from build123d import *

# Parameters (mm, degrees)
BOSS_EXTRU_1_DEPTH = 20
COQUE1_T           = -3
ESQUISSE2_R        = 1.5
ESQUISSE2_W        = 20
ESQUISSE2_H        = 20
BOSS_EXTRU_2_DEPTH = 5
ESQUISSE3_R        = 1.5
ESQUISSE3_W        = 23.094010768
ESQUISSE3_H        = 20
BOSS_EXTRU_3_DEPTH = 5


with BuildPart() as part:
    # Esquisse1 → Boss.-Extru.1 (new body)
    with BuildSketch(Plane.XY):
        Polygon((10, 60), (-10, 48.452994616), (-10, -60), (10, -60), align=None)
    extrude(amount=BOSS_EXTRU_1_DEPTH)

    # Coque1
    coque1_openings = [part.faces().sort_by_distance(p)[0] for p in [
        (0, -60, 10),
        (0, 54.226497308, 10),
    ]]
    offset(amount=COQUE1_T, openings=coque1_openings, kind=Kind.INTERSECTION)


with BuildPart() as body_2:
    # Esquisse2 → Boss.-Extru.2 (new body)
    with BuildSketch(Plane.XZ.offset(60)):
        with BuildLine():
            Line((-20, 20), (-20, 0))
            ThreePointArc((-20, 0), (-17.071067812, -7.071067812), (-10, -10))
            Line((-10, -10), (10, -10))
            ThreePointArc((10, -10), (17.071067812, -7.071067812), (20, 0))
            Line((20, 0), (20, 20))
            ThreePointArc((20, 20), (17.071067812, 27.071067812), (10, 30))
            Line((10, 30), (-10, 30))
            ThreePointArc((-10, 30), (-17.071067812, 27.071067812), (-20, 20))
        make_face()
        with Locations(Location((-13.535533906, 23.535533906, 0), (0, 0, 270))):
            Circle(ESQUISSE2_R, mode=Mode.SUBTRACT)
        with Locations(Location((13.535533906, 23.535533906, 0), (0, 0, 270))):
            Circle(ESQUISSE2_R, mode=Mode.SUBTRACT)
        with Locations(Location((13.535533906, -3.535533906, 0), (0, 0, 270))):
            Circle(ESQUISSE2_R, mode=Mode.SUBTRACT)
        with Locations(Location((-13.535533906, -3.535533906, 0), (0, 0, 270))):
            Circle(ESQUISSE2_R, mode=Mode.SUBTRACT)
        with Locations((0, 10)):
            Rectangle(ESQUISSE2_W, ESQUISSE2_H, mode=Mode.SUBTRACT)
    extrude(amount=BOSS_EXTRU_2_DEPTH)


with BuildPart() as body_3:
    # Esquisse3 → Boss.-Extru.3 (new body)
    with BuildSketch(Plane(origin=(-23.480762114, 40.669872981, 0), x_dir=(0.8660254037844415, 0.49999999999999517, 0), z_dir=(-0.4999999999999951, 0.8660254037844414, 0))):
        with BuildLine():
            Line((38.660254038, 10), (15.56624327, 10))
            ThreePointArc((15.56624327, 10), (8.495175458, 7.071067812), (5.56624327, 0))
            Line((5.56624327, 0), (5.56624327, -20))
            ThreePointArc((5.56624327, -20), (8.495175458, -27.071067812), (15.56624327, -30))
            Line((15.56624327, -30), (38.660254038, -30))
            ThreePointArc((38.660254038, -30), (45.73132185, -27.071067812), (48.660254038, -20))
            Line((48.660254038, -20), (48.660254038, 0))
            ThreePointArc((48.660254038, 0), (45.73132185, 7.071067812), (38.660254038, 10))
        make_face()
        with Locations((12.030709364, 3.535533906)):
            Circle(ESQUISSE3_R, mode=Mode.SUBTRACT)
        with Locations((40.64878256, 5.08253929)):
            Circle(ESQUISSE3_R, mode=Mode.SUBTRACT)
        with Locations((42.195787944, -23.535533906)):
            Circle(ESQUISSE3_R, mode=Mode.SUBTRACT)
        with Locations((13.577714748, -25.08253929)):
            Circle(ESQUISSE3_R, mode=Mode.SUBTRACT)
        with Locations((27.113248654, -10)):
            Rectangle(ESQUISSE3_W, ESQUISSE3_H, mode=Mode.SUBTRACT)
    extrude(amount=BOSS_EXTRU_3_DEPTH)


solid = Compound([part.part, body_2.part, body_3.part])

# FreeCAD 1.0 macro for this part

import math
import FreeCAD as App
import Part
import Sketcher
from FreeCAD import Vector
Q = App.Units.Quantity


def faces_at(feature, points):
    """Names of the faces that lie closest to the given points."""
    faces = feature.Shape.Faces
    near = lambda p: min(range(len(faces)), key=lambda i: faces[i].distToShape(Part.Vertex(*p))[0])
    return sorted({f"Face{near(p) + 1}" for p in points})


def add_polygon(sketch, points):
    """Adds a closed chain of lines whose ends are joined by coincident constraints."""
    first, n = sketch.GeometryCount, len(points)
    for a, b in zip(points, points[1:] + points[:1]):
        sketch.addGeometry(Part.LineSegment(App.Vector(*a, 0), App.Vector(*b, 0)), False)
    for i in range(n):
        sketch.addConstraint(Sketcher.Constraint("Coincident", first + i, 2, first + (i + 1) % n, 1))

doc = App.newDocument("Part")
params = doc.addObject("Spreadsheet::Sheet", "Params")
for row, (alias, value) in enumerate([
    ("sketch1_width", "20 mm"),
    ("sketch1_height", "120 mm"),
    ("pad1_length", "20 mm"),
    ("thickness_wall", "3 mm"),
    ("sketch2_diameter", "3 mm"),
    ("sketch2_radius", "10 mm"),
    ("sketch2_width", "20 mm"),
    ("pad2_length", "5 mm"),
    ("sketch3_diameter", "3 mm"),
    ("sketch3_radius", "10 mm"),
    ("sketch3_height", "20 mm"),
    ("pad3_length", "5 mm"),
], start=1):
    params.set(f"A{row}", alias)
    params.set(f"B{row}", "=" + value)
    params.setAlias(f"B{row}", alias)

body = doc.addObject("PartDesign::Body", "Body")

# Sketch on XY plane
sketch1 = body.newObject("Sketcher::SketchObject", "Sketch")
sketch1.AttachmentSupport = (doc.getObject("XY_Plane"), [""])
sketch1.MapMode = "FlatFace"
add_polygon(sketch1, [(10, 60), (-10, 48), (-10, -60), (10, -60)])  # lines 0-3
sketch1.addConstraint([
    Sketcher.Constraint("Vertical", 1),
    Sketcher.Constraint("Horizontal", 2),
    Sketcher.Constraint("Vertical", 3),
    Sketcher.Constraint("Symmetric", 1, 2, 3, 2, -1, 1),
    Sketcher.Constraint("DistanceX", 2, 1, 2, 2, 20.0),
    Sketcher.Constraint("DistanceY", 3, 1, 3, 2, 120.0),
    Sketcher.Constraint("Angle", 0, Q("-150 deg")),
])
sketch1.setExpression("Constraints[8]", "Params.sketch1_width")
sketch1.setExpression("Constraints[9]", "Params.sketch1_height")
pad1 = body.newObject("PartDesign::Pad", "Pad")
pad1.Profile = sketch1
pad1.setExpression("Length", "Params.pad1_length")
doc.recompute()

thickness = body.newObject("PartDesign::Thickness", "Thickness")
thickness.Base = (pad1, faces_at(pad1, [(0, -60, 10), (0, 54.226, 10)]))
thickness.setExpression("Value", "Params.thickness_wall")
thickness.Reversed = True
thickness.Join = "Intersection"
body2 = doc.addObject("PartDesign::Body", "Body001")

# Sketch on XZ plane
sketch2 = body2.newObject("Sketcher::SketchObject", "Sketch001")
sketch2.AttachmentSupport = (doc.getObject("XZ_Plane001"), [""])
sketch2.MapMode = "FlatFace"
sketch2.AttachmentOffset = App.Placement(Vector(0, 0, 60), App.Rotation())
sketch2.addGeometry(Part.LineSegment(Vector(-20, 20, 0), Vector(-20, 0, 0)), False)  # 0
sketch2.addGeometry(Part.ArcOfCircle(Part.Circle(Vector(-10, 0, 0), Vector(0, 0, 1), 10), math.radians(180), math.radians(270)), False)  # 1
sketch2.addGeometry(Part.LineSegment(Vector(-10, -10, 0), Vector(10, -10, 0)), False)  # 2
sketch2.addGeometry(Part.ArcOfCircle(Part.Circle(Vector(10, 0, 0), Vector(0, 0, 1), 10), math.radians(-90), math.radians(0)), False)  # 3
sketch2.addGeometry(Part.LineSegment(Vector(20, 0, 0), Vector(20, 20, 0)), False)  # 4
sketch2.addGeometry(Part.ArcOfCircle(Part.Circle(Vector(10, 20, 0), Vector(0, 0, 1), 10), math.radians(0), math.radians(90)), False)  # 5
sketch2.addGeometry(Part.LineSegment(Vector(10, 30, 0), Vector(-10, 30, 0)), False)  # 6
sketch2.addGeometry(Part.ArcOfCircle(Part.Circle(Vector(-10, 20, 0), Vector(0, 0, 1), 10), math.radians(90), math.radians(180)), False)  # 7
sketch2.addGeometry(Part.Circle(Vector(-13.5, -3.5, 0), Vector(0, 0, 1), 1.5), False)  # 8
sketch2.addGeometry(Part.Circle(Vector(13.5, -3.5, 0), Vector(0, 0, 1), 1.5), False)  # 9
add_polygon(sketch2, [(10, 0), (-10, 0), (-10, 20), (10, 20)])  # lines 10-13
sketch2.addGeometry(Part.Circle(Vector(-13.5, 23.5, 0), Vector(0, 0, 1), 1.5), False)  # 14
sketch2.addGeometry(Part.Circle(Vector(13.5, 23.5, 0), Vector(0, 0, 1), 1.5), False)  # 15
sketch2.addConstraint([
    Sketcher.Constraint("Tangent", 0, 2, 1, 1),
    Sketcher.Constraint("Tangent", 1, 2, 2, 1),
    Sketcher.Constraint("Tangent", 2, 2, 3, 1),
    Sketcher.Constraint("Tangent", 3, 2, 4, 1),
    Sketcher.Constraint("Tangent", 4, 2, 5, 1),
    Sketcher.Constraint("Tangent", 5, 2, 6, 1),
    Sketcher.Constraint("Tangent", 6, 2, 7, 1),
    Sketcher.Constraint("Tangent", 7, 2, 0, 1),
    Sketcher.Constraint("Vertical", 0),
    Sketcher.Constraint("Horizontal", 2),
    Sketcher.Constraint("Vertical", 4),
    Sketcher.Constraint("Horizontal", 6),
    Sketcher.Constraint("Horizontal", 10),
    Sketcher.Constraint("Vertical", 11),
    Sketcher.Constraint("Horizontal", 12),
    Sketcher.Constraint("Vertical", 13),
    Sketcher.Constraint("Coincident", 10, 2, 1, 3),
    Sketcher.Constraint("Coincident", 11, 2, 7, 3),
    Sketcher.Constraint("Coincident", 12, 2, 5, 3),
    Sketcher.Constraint("Equal", 1, 3),
    Sketcher.Constraint("Equal", 8, 9),
    Sketcher.Constraint("Equal", 9, 14),
    Sketcher.Constraint("Equal", 14, 15),
    Sketcher.Constraint("Symmetric", 1, 3, 3, 3, -1, 1),
    Sketcher.Constraint("Symmetric", 8, 3, 9, 3, -2),
    Sketcher.Constraint("Symmetric", 14, 3, 15, 3, -2),
    Sketcher.Constraint("Vertical", 8, 3, 14, 3),
    Sketcher.Constraint("Equal", 12, 0),
    Sketcher.Constraint("Diameter", 8, 3.0),
    Sketcher.Constraint("Radius", 1, 10.0),
    Sketcher.Constraint("DistanceX", 2, 1, 2, 2, 20.0),
    Sketcher.Constraint("DistanceX", 8, 3, -1, 1, 13.535534),
    Sketcher.Constraint("DistanceY", 8, 3, -1, 1, 3.535534),
    Sketcher.Constraint("DistanceY", -1, 1, 14, 3, 23.535534),
])
sketch2.setExpression("Constraints[32]", "Params.sketch2_diameter")
sketch2.setExpression("Constraints[33]", "Params.sketch2_radius")
sketch2.setExpression("Constraints[34]", "Params.sketch2_width")
pad2 = body2.newObject("PartDesign::Pad", "Pad001")
pad2.Profile = sketch2
pad2.setExpression("Length", "Params.pad2_length")
body3 = doc.addObject("PartDesign::Body", "Body002")

# Sketch on an angled plane
sketch3 = body3.newObject("Sketcher::SketchObject", "Sketch002")
sketch3.Placement = App.Placement(Vector(-23.480762, 40.669873, 0), App.Rotation(Vector(0.866025404, 0.5, 0), Vector(0, 0, -1), Vector(-0.5, 0.866025404, 0), "ZXY"))
sketch3.addGeometry(Part.LineSegment(Vector(38.7, 10, 0), Vector(15.6, 10, 0)), False)  # 0
sketch3.addGeometry(Part.ArcOfCircle(Part.Circle(Vector(15.6, 0, 0), Vector(0, 0, 1), 10), math.radians(90), math.radians(180)), False)  # 1
sketch3.addGeometry(Part.LineSegment(Vector(5.6, 0, 0), Vector(5.6, -20, 0)), False)  # 2
sketch3.addGeometry(Part.ArcOfCircle(Part.Circle(Vector(15.6, -20, 0), Vector(0, 0, 1), 10), math.radians(180), math.radians(270)), False)  # 3
sketch3.addGeometry(Part.LineSegment(Vector(15.6, -30, 0), Vector(38.7, -30, 0)), False)  # 4
sketch3.addGeometry(Part.ArcOfCircle(Part.Circle(Vector(38.7, -20, 0), Vector(0, 0, 1), 10), math.radians(-90), math.radians(0)), False)  # 5
sketch3.addGeometry(Part.LineSegment(Vector(48.7, -20, 0), Vector(48.7, 0, 0)), False)  # 6
sketch3.addGeometry(Part.ArcOfCircle(Part.Circle(Vector(38.7, 0, 0), Vector(0, 0, 1), 10), math.radians(0), math.radians(90)), False)  # 7
sketch3.addGeometry(Part.Circle(Vector(13.6, -25.1, 0), Vector(0, 0, 1), 1.5), False)  # 8
sketch3.addGeometry(Part.Circle(Vector(42.2, -23.5, 0), Vector(0, 0, 1), 1.5), False)  # 9
sketch3.addGeometry(Part.Circle(Vector(12, 3.5, 0), Vector(0, 0, 1), 1.5), False)  # 10
add_polygon(sketch3, [(38.7, -20), (15.6, -20), (15.6, 0), (38.7, 0)])  # lines 11-14
sketch3.addGeometry(Part.Circle(Vector(40.6, 5.1, 0), Vector(0, 0, 1), 1.5), False)  # 15
sketch3.addConstraint([
    Sketcher.Constraint("Tangent", 0, 2, 1, 1),
    Sketcher.Constraint("Tangent", 1, 2, 2, 1),
    Sketcher.Constraint("Tangent", 2, 2, 3, 1),
    Sketcher.Constraint("Tangent", 3, 2, 4, 1),
    Sketcher.Constraint("Tangent", 4, 2, 5, 1),
    Sketcher.Constraint("Tangent", 5, 2, 6, 1),
    Sketcher.Constraint("Tangent", 6, 2, 7, 1),
    Sketcher.Constraint("Tangent", 7, 2, 0, 1),
    Sketcher.Constraint("Horizontal", 0),
    Sketcher.Constraint("Vertical", 2),
    Sketcher.Constraint("Horizontal", 4),
    Sketcher.Constraint("Vertical", 6),
    Sketcher.Constraint("Horizontal", 11),
    Sketcher.Constraint("Vertical", 12),
    Sketcher.Constraint("Horizontal", 13),
    Sketcher.Constraint("Vertical", 14),
    Sketcher.Constraint("Coincident", 11, 2, 3, 3),
    Sketcher.Constraint("Coincident", 12, 2, 1, 3),
    Sketcher.Constraint("Coincident", 13, 2, 7, 3),
    Sketcher.Constraint("Equal", 3, 5),
    Sketcher.Constraint("Equal", 8, 9),
    Sketcher.Constraint("Equal", 9, 10),
    Sketcher.Constraint("Equal", 10, 15),
    Sketcher.Constraint("PointOnObject", 1, 3, -1),
    Sketcher.Constraint("Diameter", 8, 3.0),
    Sketcher.Constraint("Radius", 1, 10.0),
    Sketcher.Constraint("DistanceY", 2, 2, 2, 1, 20.0),
    Sketcher.Constraint("DistanceX", 0, 2, 0, 1, 23.094011),
    Sketcher.Constraint("DistanceY", 8, 3, -1, 1, 25.082539),
    Sketcher.Constraint("DistanceX", -1, 1, 10, 3, 12.030709),
    Sketcher.Constraint("DistanceY", -1, 1, 15, 3, 5.082539),
    Sketcher.Constraint("DistanceX", 8, 3, 3, 3, 1.988529),
    Sketcher.Constraint("DistanceX", 7, 3, 15, 3, 1.988529),
    Sketcher.Constraint("DistanceX", -1, 1, 1, 3, 15.566243),
    Sketcher.Constraint("DistanceX", -1, 1, 9, 3, 42.195788),
    Sketcher.Constraint("DistanceY", 9, 3, -1, 1, 23.535534),
    Sketcher.Constraint("DistanceY", -1, 1, 10, 3, 3.535534),
])
sketch3.setExpression("Constraints[28]", "Params.sketch3_diameter")
sketch3.setExpression("Constraints[29]", "Params.sketch3_radius")
sketch3.setExpression("Constraints[30]", "Params.sketch3_height")
pad3 = body3.newObject("PartDesign::Pad", "Pad002")
pad3.Profile = sketch3
pad3.setExpression("Length", "Params.pad3_length")

doc.recompute()
